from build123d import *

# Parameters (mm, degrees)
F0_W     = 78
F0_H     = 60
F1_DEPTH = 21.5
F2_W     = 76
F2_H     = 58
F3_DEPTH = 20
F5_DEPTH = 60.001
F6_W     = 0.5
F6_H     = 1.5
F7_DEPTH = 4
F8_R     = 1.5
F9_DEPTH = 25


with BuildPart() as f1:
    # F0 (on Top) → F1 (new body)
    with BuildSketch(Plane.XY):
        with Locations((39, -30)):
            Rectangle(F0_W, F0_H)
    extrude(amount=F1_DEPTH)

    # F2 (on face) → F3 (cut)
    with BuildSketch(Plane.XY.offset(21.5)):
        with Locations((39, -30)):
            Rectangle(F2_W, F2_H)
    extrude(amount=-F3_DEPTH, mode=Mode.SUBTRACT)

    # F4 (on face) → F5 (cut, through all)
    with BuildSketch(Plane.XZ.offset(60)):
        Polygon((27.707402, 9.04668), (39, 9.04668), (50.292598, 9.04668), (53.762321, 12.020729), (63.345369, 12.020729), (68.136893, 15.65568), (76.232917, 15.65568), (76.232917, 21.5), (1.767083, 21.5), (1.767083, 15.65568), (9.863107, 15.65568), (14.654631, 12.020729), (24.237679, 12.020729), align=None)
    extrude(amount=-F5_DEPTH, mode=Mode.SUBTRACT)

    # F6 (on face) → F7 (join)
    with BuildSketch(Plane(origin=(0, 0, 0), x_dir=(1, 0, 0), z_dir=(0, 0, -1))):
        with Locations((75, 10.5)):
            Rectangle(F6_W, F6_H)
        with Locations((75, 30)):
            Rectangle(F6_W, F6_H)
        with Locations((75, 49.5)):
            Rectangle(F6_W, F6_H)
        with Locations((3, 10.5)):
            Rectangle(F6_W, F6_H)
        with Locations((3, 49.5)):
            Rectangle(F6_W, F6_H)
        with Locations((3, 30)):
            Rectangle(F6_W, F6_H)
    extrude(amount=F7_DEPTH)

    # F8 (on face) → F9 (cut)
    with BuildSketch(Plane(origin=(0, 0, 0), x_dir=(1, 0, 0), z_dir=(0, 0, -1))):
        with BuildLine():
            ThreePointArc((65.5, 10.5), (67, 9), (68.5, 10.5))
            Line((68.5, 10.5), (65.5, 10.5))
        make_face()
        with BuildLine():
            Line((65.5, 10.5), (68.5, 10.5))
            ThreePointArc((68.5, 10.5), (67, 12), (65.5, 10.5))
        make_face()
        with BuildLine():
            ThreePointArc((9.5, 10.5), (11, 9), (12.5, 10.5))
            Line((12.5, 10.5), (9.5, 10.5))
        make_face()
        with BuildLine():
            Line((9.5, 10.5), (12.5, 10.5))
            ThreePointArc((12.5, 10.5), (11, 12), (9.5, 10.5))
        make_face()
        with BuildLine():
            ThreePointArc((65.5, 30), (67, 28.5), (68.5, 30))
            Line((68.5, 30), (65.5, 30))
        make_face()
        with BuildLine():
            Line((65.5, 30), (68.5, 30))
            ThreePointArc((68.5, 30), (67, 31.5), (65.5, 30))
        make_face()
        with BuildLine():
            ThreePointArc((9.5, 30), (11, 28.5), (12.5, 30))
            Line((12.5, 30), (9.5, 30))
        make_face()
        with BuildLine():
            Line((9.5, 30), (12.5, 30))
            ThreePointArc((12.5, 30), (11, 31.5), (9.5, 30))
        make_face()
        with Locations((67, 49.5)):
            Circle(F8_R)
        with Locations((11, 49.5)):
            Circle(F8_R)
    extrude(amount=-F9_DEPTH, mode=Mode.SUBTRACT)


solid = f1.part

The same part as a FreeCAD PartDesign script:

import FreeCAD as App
import Part
import Sketcher
Q = App.Units.Quantity


def add_polygon(sketch, points):
    """Adds a closed chain of lines whose ends are joined by coincident constraints."""
    first, n = sketch.GeometryCount, len(points)
    for a, b in zip(points, points[1:] + points[:1]):
        sketch.addGeometry(Part.LineSegment(App.Vector(*a, 0), App.Vector(*b, 0)), False)
    for i in range(n):
        sketch.addConstraint(Sketcher.Constraint("Coincident", first + i, 2, first + (i + 1) % n, 1))

doc = App.newDocument("Part")
body = doc.addObject("PartDesign::Body", "Body")

# Sketch on XY plane
sketch1 = body.newObject("Sketcher::SketchObject", "Sketch")
sketch1.AttachmentSupport = (doc.getObject("XY_Plane"), [""])
sketch1.MapMode = "FlatFace"
add_polygon(sketch1, [(0, 0), (0, -60), (78, -60), (78, 0)])  # lines 0-3
sketch1.addConstraint(Sketcher.Constraint("Vertical", 0))
sketch1.addConstraint(Sketcher.Constraint("Horizontal", 1))
sketch1.addConstraint(Sketcher.Constraint("Vertical", 2))
sketch1.addConstraint(Sketcher.Constraint("Horizontal", 3))
sketch1.addConstraint(Sketcher.Constraint("Coincident", 3, 2, -1, 1))
sketch1.addConstraint(Sketcher.Constraint("DistanceX", 1, 1, 1, 2, Q("78 mm")))
sketch1.addConstraint(Sketcher.Constraint("DistanceY", 0, 2, 0, 1, Q("60 mm")))
pad1 = body.newObject("PartDesign::Pad", "Pad")
pad1.Profile = sketch1
pad1.Length = 21.5

# Sketch on XY plane
sketch2 = body.newObject("Sketcher::SketchObject", "Sketch001")
sketch2.AttachmentSupport = (doc.getObject("XY_Plane"), [""])
sketch2.MapMode = "FlatFace"
sketch2.AttachmentOffset = App.Placement(App.Vector(0, 0, 21.5), App.Rotation())
add_polygon(sketch2, [(1, -1), (1, -59), (77, -59), (77, -1)])  # lines 0-3
sketch2.addConstraint(Sketcher.Constraint("Vertical", 0))
sketch2.addConstraint(Sketcher.Constraint("Horizontal", 1))
sketch2.addConstraint(Sketcher.Constraint("Vertical", 2))
sketch2.addConstraint(Sketcher.Constraint("Horizontal", 3))
sketch2.addConstraint(Sketcher.Constraint("DistanceX", 1, 1, 1, 2, Q("76 mm")))
sketch2.addConstraint(Sketcher.Constraint("DistanceY", 0, 2, 0, 1, Q("58 mm")))
sketch2.addConstraint(Sketcher.Constraint("DistanceX", -1, 1, 0, 2, Q("1 mm")))
sketch2.addConstraint(Sketcher.Constraint("DistanceY", 0, 2, -1, 1, Q("59 mm")))
pocket1 = body.newObject("PartDesign::Pocket", "Pocket")
pocket1.Profile = sketch2
pocket1.Length = 20

# Sketch on XZ plane
sketch3 = body.newObject("Sketcher::SketchObject", "Sketch002")
sketch3.AttachmentSupport = (doc.getObject("XZ_Plane"), [""])
sketch3.MapMode = "FlatFace"
sketch3.AttachmentOffset = App.Placement(App.Vector(0, 0, 60), App.Rotation())
add_polygon(sketch3, [(27.707402, 9.04668), (50.292598, 9.04668), (53.762321, 12.020729), (63.345369, 12.020729), (68.136893, 15.65568), (76.232917, 15.65568), (76.232917, 21.5), (1.767083, 21.5), (1.767083, 15.65568), (9.863107, 15.65568), (14.654631, 12.020729), (24.237679, 12.020729)])  # lines 0-11
sketch3.addConstraint(Sketcher.Constraint("Horizontal", 0))
sketch3.addConstraint(Sketcher.Constraint("Horizontal", 2))
sketch3.addConstraint(Sketcher.Constraint("Horizontal", 4))
sketch3.addConstraint(Sketcher.Constraint("Vertical", 5))
sketch3.addConstraint(Sketcher.Constraint("Horizontal", 6))
sketch3.addConstraint(Sketcher.Constraint("Vertical", 7))
sketch3.addConstraint(Sketcher.Constraint("Horizontal", 8))
sketch3.addConstraint(Sketcher.Constraint("Horizontal", 10))
sketch3.addConstraint(Sketcher.Constraint("Horizontal", 4, 2, 7, 2))
sketch3.addConstraint(Sketcher.Constraint("Horizontal", 2, 2, 9, 2))
sketch3.addConstraint(Sketcher.Constraint("Equal", 4, 8))
sketch3.addConstraint(Sketcher.Constraint("Equal", 2, 10))
sketch3.addConstraint(Sketcher.Constraint("Equal", 3, 9))
sketch3.addConstraint(Sketcher.Constraint("Equal", 1, 11))
sketch3.addConstraint(Sketcher.Constraint("DistanceY", -1, 1, 5, 2, Q("21.5 mm")))
sketch3.addConstraint(Sketcher.Constraint("DistanceY", 0, 2, 3, 2, Q("6.609 mm")))
sketch3.addConstraint(Sketcher.Constraint("DistanceY", 5, 1, 5, 2, Q("5.84432 mm")))
sketch3.addConstraint(Sketcher.Constraint("DistanceX", -1, 1, 11, 2, Q("27.707402 mm")))
sketch3.addConstraint(Sketcher.Constraint("Distance", 3, Q("6.014281 mm")))
sketch3.addConstraint(Sketcher.Constraint("DistanceX", 0, 1, 0, 2, Q("22.585196 mm")))
sketch3.addConstraint(Sketcher.Constraint("DistanceX", 2, 1, 2, 2, Q("9.583048 mm")))
sketch3.addConstraint(Sketcher.Constraint("DistanceX", 4, 1, 4, 2, Q("8.096024 mm")))
sketch3.addConstraint(Sketcher.Constraint("DistanceX", 6, 2, 6, 1, Q("74.465834 mm")))
sketch3.addConstraint(Sketcher.Constraint("DistanceX", -1, 1, 1, 2, Q("53.762321 mm")))
pocket2 = body.newObject("PartDesign::Pocket", "Pocket001")
pocket2.Profile = sketch3
pocket2.Type = "ThroughAll"

# Sketch on XY plane
sketch4 = body.newObject("Sketcher::SketchObject", "Sketch003")
sketch4.AttachmentSupport = (doc.getObject("XY_Plane"), [""])
sketch4.MapMode = "FlatFace"
add_polygon(sketch4, [(74.75, -11.25), (74.75, -9.75), (75.25, -9.75), (75.25, -11.25)])  # lines 0-3
add_polygon(sketch4, [(74.75, -30.75), (74.75, -29.25), (75.25, -29.25), (75.25, -30.75)])  # lines 4-7
add_polygon(sketch4, [(74.75, -50.25), (74.75, -48.75), (75.25, -48.75), (75.25, -50.25)])  # lines 8-11
add_polygon(sketch4, [(2.75, -11.25), (2.75, -9.75), (3.25, -9.75), (3.25, -11.25)])  # lines 12-15
add_polygon(sketch4, [(2.75, -50.25), (2.75, -48.75), (3.25, -48.75), (3.25, -50.25)])  # lines 16-19
add_polygon(sketch4, [(2.75, -30.75), (2.75, -29.25), (3.25, -29.25), (3.25, -30.75)])  # lines 20-23
sketch4.addConstraint(Sketcher.Constraint("Vertical", 0))
sketch4.addConstraint(Sketcher.Constraint("Horizontal", 1))
sketch4.addConstraint(Sketcher.Constraint("Vertical", 2))
sketch4.addConstraint(Sketcher.Constraint("Horizontal", 3))
sketch4.addConstraint(Sketcher.Constraint("Vertical", 4))
sketch4.addConstraint(Sketcher.Constraint("Horizontal", 5))
sketch4.addConstraint(Sketcher.Constraint("Vertical", 6))
sketch4.addConstraint(Sketcher.Constraint("Horizontal", 7))
sketch4.addConstraint(Sketcher.Constraint("Vertical", 8))
sketch4.addConstraint(Sketcher.Constraint("Horizontal", 9))
sketch4.addConstraint(Sketcher.Constraint("Vertical", 10))
sketch4.addConstraint(Sketcher.Constraint("Horizontal", 11))
sketch4.addConstraint(Sketcher.Constraint("Vertical", 12))
sketch4.addConstraint(Sketcher.Constraint("Horizontal", 13))
sketch4.addConstraint(Sketcher.Constraint("Vertical", 14))
sketch4.addConstraint(Sketcher.Constraint("Horizontal", 15))
sketch4.addConstraint(Sketcher.Constraint("Vertical", 16))
sketch4.addConstraint(Sketcher.Constraint("Horizontal", 17))
sketch4.addConstraint(Sketcher.Constraint("Vertical", 18))
sketch4.addConstraint(Sketcher.Constraint("Horizontal", 19))
sketch4.addConstraint(Sketcher.Constraint("Vertical", 20))
sketch4.addConstraint(Sketcher.Constraint("Horizontal", 21))
sketch4.addConstraint(Sketcher.Constraint("Vertical", 22))
sketch4.addConstraint(Sketcher.Constraint("Horizontal", 23))
sketch4.addConstraint(Sketcher.Constraint("Horizontal", 1, 2, 12, 2))
sketch4.addConstraint(Sketcher.Constraint("Horizontal", 3, 2, 14, 2))
sketch4.addConstraint(Sketcher.Constraint("Horizontal", 9, 2, 16, 2))
sketch4.addConstraint(Sketcher.Constraint("Horizontal", 11, 2, 18, 2))
sketch4.addConstraint(Sketcher.Constraint("Horizontal", 5, 2, 20, 2))
sketch4.addConstraint(Sketcher.Constraint("Horizontal", 7, 2, 22, 2))
sketch4.addConstraint(Sketcher.Constraint("Vertical", 3, 2, 4, 2))
sketch4.addConstraint(Sketcher.Constraint("Vertical", 2, 2, 5, 2))
sketch4.addConstraint(Sketcher.Constraint("Vertical", 7, 2, 8, 2))
sketch4.addConstraint(Sketcher.Constraint("Vertical", 6, 2, 9, 2))
sketch4.addConstraint(Sketcher.Constraint("Vertical", 15, 2, 16, 2))
sketch4.addConstraint(Sketcher.Constraint("Vertical", 14, 2, 17, 2))
sketch4.addConstraint(Sketcher.Constraint("Vertical", 19, 2, 20, 2))
sketch4.addConstraint(Sketcher.Constraint("Vertical", 18, 2, 21, 2))
sketch4.addConstraint(Sketcher.Constraint("Equal", 11, 13))
sketch4.addConstraint(Sketcher.Constraint("Equal", 2, 4))
sketch4.addConstraint(Sketcher.Constraint("Equal", 6, 8))
sketch4.addConstraint(Sketcher.Constraint("DistanceX", 1, 1, 1, 2, Q("0.5 mm")))
sketch4.addConstraint(Sketcher.Constraint("DistanceY", 0, 1, 0, 2, Q("1.5 mm")))
sketch4.addConstraint(Sketcher.Constraint("DistanceY", 4, 2, 3, 2, Q("18 mm")))
sketch4.addConstraint(Sketcher.Constraint("DistanceY", 8, 2, 7, 2, Q("18 mm")))
sketch4.addConstraint(Sketcher.Constraint("DistanceX", 12, 2, 0, 2, Q("72 mm")))
sketch4.addConstraint(Sketcher.Constraint("DistanceX", -1, 1, 0, 2, Q("74.75 mm")))
sketch4.addConstraint(Sketcher.Constraint("DistanceY", 0, 2, -1, 1, Q("9.75 mm")))
pad2 = body.newObject("PartDesign::Pad", "Pad001")
pad2.Profile = sketch4
pad2.Length = 4
pad2.Reversed = True

# Sketch on XY plane
sketch5 = body.newObject("Sketcher::SketchObject", "Sketch004")
sketch5.AttachmentSupport = (doc.getObject("XY_Plane"), [""])
sketch5.MapMode = "FlatFace"
sketch5.addGeometry(Part.Circle(App.Vector(67, -10.5, 0), App.Vector(0, 0, 1), 1.5), False)
sketch5.addGeometry(Part.Circle(App.Vector(11, -10.5, 0), App.Vector(0, 0, 1), 1.5), False)
sketch5.addGeometry(Part.Circle(App.Vector(67, -30, 0), App.Vector(0, 0, 1), 1.5), False)
sketch5.addGeometry(Part.Circle(App.Vector(11, -30, 0), App.Vector(0, 0, 1), 1.5), False)
sketch5.addGeometry(Part.Circle(App.Vector(67, -49.5, 0), App.Vector(0, 0, 1), 1.5), False)
sketch5.addGeometry(Part.Circle(App.Vector(11, -49.5, 0), App.Vector(0, 0, 1), 1.5), False)
sketch5.addConstraint(Sketcher.Constraint("Equal", 0, 1))
sketch5.addConstraint(Sketcher.Constraint("Equal", 1, 2))
sketch5.addConstraint(Sketcher.Constraint("Equal", 2, 3))
sketch5.addConstraint(Sketcher.Constraint("Equal", 3, 4))
sketch5.addConstraint(Sketcher.Constraint("Equal", 4, 5))
sketch5.addConstraint(Sketcher.Constraint("Horizontal", 0, 3, 1, 3))
sketch5.addConstraint(Sketcher.Constraint("Horizontal", 2, 3, 3, 3))
sketch5.addConstraint(Sketcher.Constraint("Horizontal", 4, 3, 5, 3))
sketch5.addConstraint(Sketcher.Constraint("Vertical", 0, 3, 2, 3))
sketch5.addConstraint(Sketcher.Constraint("Vertical", 1, 3, 3, 3))
sketch5.addConstraint(Sketcher.Constraint("Vertical", 2, 3, 4, 3))
sketch5.addConstraint(Sketcher.Constraint("Vertical", 3, 3, 5, 3))
sketch5.addConstraint(Sketcher.Constraint("Diameter", 0, Q("3 mm")))
sketch5.addConstraint(Sketcher.Constraint("DistanceX", -1, 1, 0, 3, Q("67 mm")))
sketch5.addConstraint(Sketcher.Constraint("DistanceX", -1, 1, 1, 3, Q("11 mm")))
sketch5.addConstraint(Sketcher.Constraint("DistanceY", 2, 3, -1, 1, Q("30 mm")))
sketch5.addConstraint(Sketcher.Constraint("DistanceY", 4, 3, 0, 3, Q("39 mm")))
sketch5.addConstraint(Sketcher.Constraint("DistanceY", 0, 3, -1, 1, Q("10.5 mm")))
pocket3 = body.newObject("PartDesign::Pocket", "Pocket002")
pocket3.Profile = sketch5
pocket3.Length = 25
pocket3.Reversed = True

doc.recompute()
